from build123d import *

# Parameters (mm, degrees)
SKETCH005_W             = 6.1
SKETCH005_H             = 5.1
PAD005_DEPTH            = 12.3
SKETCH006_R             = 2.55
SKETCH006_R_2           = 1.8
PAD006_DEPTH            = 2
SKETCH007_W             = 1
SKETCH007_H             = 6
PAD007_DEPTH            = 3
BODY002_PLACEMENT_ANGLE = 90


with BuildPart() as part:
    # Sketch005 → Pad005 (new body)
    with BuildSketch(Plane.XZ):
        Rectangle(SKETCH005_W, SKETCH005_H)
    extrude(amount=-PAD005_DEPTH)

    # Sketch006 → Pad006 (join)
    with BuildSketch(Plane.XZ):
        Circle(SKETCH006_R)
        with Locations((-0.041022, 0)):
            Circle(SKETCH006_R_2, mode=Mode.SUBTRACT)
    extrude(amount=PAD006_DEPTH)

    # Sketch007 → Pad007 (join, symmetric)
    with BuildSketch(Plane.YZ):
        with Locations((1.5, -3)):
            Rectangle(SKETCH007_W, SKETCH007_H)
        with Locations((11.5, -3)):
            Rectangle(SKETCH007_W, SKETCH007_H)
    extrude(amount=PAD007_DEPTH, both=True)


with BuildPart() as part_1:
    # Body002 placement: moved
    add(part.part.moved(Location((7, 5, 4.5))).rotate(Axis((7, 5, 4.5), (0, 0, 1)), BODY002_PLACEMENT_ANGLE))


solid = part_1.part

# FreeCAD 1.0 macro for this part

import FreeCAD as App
import Part
import Sketcher
Q = App.Units.Quantity

doc = App.newDocument("Part")
params = doc.addObject("Spreadsheet::Sheet", "Params")
for row, (alias, value) in enumerate([
    ("sketch1_width", "6.1 mm"),
    ("sketch1_height", "5.1 mm"),
    ("pad1_length", "12.3 mm"),
    ("sketch2_diameter", "5.1 mm"),
    ("sketch2_diameter2", "3.6 mm"),
    ("pad2_length", "2 mm"),
    ("sketch3_width", "1 mm"),
    ("sketch3_height", "6 mm"),
    ("pad3_length", "6 mm"),
], start=1):
    params.set(f"A{row}", alias)
    params.set(f"B{row}", "=" + value)
    params.setAlias(f"B{row}", alias)

body = doc.addObject("PartDesign::Body", "Body")

sketch1 = body.newObject("Sketcher::SketchObject", "Sketch")
sketch1.AttachmentSupport = (doc.getObject("XZ_Plane"), [""])
sketch1.MapMode = "FlatFace"
sketch1.addGeometry([
    Part.LineSegment(App.Vector(-3, 3, 0), App.Vector(-3, -3, 0)),
    Part.LineSegment(App.Vector(-3, -3, 0), App.Vector(3, -3, 0)),
    Part.LineSegment(App.Vector(3, -3, 0), App.Vector(3, 3, 0)),
    Part.LineSegment(App.Vector(3, 3, 0), App.Vector(-3, 3, 0)),
], False)
sketch1.addConstraint([
    Sketcher.Constraint("Coincident", 0, 2, 1, 1),
    Sketcher.Constraint("Coincident", 1, 2, 2, 1),
    Sketcher.Constraint("Coincident", 2, 2, 3, 1),
    Sketcher.Constraint("Coincident", 3, 2, 0, 1),
    Sketcher.Constraint("Vertical", 0),
    Sketcher.Constraint("Horizontal", 1),
    Sketcher.Constraint("Vertical", 2),
    Sketcher.Constraint("Horizontal", 3),
    Sketcher.Constraint("Symmetric", 0, 2, 2, 2, -1, 1),
    Sketcher.Constraint("DistanceX", 1, 1, 1, 2, Q("6.1 mm")),
    Sketcher.Constraint("DistanceY", 0, 2, 0, 1, Q("5.1 mm")),
])
sketch1.setExpression("Constraints[9]", "Params.sketch1_width")
sketch1.setExpression("Constraints[10]", "Params.sketch1_height")
pad1 = body.newObject("PartDesign::Pad", "Pad")
pad1.Profile = sketch1
pad1.setExpression("Length", "Params.pad1_length")
pad1.Reversed = True

sketch2 = body.newObject("Sketcher::SketchObject", "Sketch001")
sketch2.AttachmentSupport = (doc.getObject("XZ_Plane"), [""])
sketch2.MapMode = "FlatFace"
sketch2.addGeometry([
    Part.Circle(App.Vector(0, 0, 0), App.Vector(0, 0, 1), 2.5),
    Part.Circle(App.Vector(0, 0, 0), App.Vector(0, 0, 1), 1.8),
], False)
sketch2.addConstraint([
    Sketcher.Constraint("Coincident", 0, 3, -1, 1),
    Sketcher.Constraint("PointOnObject", 1, 3, -1),
    Sketcher.Constraint("Diameter", 0, Q("5.1 mm")),
    Sketcher.Constraint("Diameter", 1, Q("3.6 mm")),
    Sketcher.Constraint("DistanceX", 1, 3, -1, 1, Q("0.041022 mm")),
])
sketch2.setExpression("Constraints[2]", "Params.sketch2_diameter")
sketch2.setExpression("Constraints[3]", "Params.sketch2_diameter2")
pad2 = body.newObject("PartDesign::Pad", "Pad001")
pad2.Profile = sketch2
pad2.setExpression("Length", "Params.pad2_length")

sketch3 = body.newObject("Sketcher::SketchObject", "Sketch002")
sketch3.AttachmentSupport = (doc.getObject("YZ_Plane"), [""])
sketch3.MapMode = "FlatFace"
sketch3.addGeometry([
    Part.LineSegment(App.Vector(1, 0, 0), App.Vector(1, -6, 0)),
    Part.LineSegment(App.Vector(1, -6, 0), App.Vector(2, -6, 0)),
    Part.LineSegment(App.Vector(2, -6, 0), App.Vector(2, 0, 0)),
    Part.LineSegment(App.Vector(2, 0, 0), App.Vector(1, 0, 0)),
    Part.LineSegment(App.Vector(11, 0, 0), App.Vector(11, -6, 0)),
    Part.LineSegment(App.Vector(11, -6, 0), App.Vector(12, -6, 0)),
    Part.LineSegment(App.Vector(12, -6, 0), App.Vector(12, 0, 0)),
    Part.LineSegment(App.Vector(12, 0, 0), App.Vector(11, 0, 0)),
], False)
sketch3.addConstraint([
    Sketcher.Constraint("Coincident", 0, 2, 1, 1),
    Sketcher.Constraint("Coincident", 1, 2, 2, 1),
    Sketcher.Constraint("Coincident", 2, 2, 3, 1),
    Sketcher.Constraint("Coincident", 3, 2, 0, 1),
    Sketcher.Constraint("Coincident", 4, 2, 5, 1),
    Sketcher.Constraint("Coincident", 5, 2, 6, 1),
    Sketcher.Constraint("Coincident", 6, 2, 7, 1),
    Sketcher.Constraint("Coincident", 7, 2, 4, 1),
    Sketcher.Constraint("Vertical", 0),
    Sketcher.Constraint("Horizontal", 1),
    Sketcher.Constraint("Vertical", 2),
    Sketcher.Constraint("Horizontal", 3),
    Sketcher.Constraint("Vertical", 4),
    Sketcher.Constraint("Horizontal", 5),
    Sketcher.Constraint("Vertical", 6),
    Sketcher.Constraint("Horizontal", 7),
    Sketcher.Constraint("PointOnObject", 2, 2, -1),
    Sketcher.Constraint("PointOnObject", 6, 2, -1),
    Sketcher.Constraint("Horizontal", 1, 2, 4, 2),
    Sketcher.Constraint("Equal", 3, 5),
    Sketcher.Constraint("DistanceX", 1, 1, 1, 2, Q("1 mm")),
    Sketcher.Constraint("DistanceY", 0, 2, 0, 1, Q("6 mm")),
    Sketcher.Constraint("DistanceX", -1, 1, 0, 2, Q("1 mm")),
    Sketcher.Constraint("DistanceX", -1, 1, 4, 2, Q("11 mm")),
])
sketch3.setExpression("Constraints[20]", "Params.sketch3_width")
sketch3.setExpression("Constraints[21]", "Params.sketch3_height")
pad3 = body.newObject("PartDesign::Pad", "Pad002")
pad3.Profile = sketch3
pad3.setExpression("Length", "Params.pad3_length")
pad3.Midplane = True
body2 = doc.addObject("PartDesign::Body", "Body001")
doc.recompute()

body.Placement = App.Placement(App.Vector(7, 5, 4.5), App.Rotation(App.Vector(0, 0, 1), 90))
boolean = body2.newObject("PartDesign::Boolean", "Boolean")
boolean.Type = "Fuse"
boolean.addObjects([body])

doc.recompute()
